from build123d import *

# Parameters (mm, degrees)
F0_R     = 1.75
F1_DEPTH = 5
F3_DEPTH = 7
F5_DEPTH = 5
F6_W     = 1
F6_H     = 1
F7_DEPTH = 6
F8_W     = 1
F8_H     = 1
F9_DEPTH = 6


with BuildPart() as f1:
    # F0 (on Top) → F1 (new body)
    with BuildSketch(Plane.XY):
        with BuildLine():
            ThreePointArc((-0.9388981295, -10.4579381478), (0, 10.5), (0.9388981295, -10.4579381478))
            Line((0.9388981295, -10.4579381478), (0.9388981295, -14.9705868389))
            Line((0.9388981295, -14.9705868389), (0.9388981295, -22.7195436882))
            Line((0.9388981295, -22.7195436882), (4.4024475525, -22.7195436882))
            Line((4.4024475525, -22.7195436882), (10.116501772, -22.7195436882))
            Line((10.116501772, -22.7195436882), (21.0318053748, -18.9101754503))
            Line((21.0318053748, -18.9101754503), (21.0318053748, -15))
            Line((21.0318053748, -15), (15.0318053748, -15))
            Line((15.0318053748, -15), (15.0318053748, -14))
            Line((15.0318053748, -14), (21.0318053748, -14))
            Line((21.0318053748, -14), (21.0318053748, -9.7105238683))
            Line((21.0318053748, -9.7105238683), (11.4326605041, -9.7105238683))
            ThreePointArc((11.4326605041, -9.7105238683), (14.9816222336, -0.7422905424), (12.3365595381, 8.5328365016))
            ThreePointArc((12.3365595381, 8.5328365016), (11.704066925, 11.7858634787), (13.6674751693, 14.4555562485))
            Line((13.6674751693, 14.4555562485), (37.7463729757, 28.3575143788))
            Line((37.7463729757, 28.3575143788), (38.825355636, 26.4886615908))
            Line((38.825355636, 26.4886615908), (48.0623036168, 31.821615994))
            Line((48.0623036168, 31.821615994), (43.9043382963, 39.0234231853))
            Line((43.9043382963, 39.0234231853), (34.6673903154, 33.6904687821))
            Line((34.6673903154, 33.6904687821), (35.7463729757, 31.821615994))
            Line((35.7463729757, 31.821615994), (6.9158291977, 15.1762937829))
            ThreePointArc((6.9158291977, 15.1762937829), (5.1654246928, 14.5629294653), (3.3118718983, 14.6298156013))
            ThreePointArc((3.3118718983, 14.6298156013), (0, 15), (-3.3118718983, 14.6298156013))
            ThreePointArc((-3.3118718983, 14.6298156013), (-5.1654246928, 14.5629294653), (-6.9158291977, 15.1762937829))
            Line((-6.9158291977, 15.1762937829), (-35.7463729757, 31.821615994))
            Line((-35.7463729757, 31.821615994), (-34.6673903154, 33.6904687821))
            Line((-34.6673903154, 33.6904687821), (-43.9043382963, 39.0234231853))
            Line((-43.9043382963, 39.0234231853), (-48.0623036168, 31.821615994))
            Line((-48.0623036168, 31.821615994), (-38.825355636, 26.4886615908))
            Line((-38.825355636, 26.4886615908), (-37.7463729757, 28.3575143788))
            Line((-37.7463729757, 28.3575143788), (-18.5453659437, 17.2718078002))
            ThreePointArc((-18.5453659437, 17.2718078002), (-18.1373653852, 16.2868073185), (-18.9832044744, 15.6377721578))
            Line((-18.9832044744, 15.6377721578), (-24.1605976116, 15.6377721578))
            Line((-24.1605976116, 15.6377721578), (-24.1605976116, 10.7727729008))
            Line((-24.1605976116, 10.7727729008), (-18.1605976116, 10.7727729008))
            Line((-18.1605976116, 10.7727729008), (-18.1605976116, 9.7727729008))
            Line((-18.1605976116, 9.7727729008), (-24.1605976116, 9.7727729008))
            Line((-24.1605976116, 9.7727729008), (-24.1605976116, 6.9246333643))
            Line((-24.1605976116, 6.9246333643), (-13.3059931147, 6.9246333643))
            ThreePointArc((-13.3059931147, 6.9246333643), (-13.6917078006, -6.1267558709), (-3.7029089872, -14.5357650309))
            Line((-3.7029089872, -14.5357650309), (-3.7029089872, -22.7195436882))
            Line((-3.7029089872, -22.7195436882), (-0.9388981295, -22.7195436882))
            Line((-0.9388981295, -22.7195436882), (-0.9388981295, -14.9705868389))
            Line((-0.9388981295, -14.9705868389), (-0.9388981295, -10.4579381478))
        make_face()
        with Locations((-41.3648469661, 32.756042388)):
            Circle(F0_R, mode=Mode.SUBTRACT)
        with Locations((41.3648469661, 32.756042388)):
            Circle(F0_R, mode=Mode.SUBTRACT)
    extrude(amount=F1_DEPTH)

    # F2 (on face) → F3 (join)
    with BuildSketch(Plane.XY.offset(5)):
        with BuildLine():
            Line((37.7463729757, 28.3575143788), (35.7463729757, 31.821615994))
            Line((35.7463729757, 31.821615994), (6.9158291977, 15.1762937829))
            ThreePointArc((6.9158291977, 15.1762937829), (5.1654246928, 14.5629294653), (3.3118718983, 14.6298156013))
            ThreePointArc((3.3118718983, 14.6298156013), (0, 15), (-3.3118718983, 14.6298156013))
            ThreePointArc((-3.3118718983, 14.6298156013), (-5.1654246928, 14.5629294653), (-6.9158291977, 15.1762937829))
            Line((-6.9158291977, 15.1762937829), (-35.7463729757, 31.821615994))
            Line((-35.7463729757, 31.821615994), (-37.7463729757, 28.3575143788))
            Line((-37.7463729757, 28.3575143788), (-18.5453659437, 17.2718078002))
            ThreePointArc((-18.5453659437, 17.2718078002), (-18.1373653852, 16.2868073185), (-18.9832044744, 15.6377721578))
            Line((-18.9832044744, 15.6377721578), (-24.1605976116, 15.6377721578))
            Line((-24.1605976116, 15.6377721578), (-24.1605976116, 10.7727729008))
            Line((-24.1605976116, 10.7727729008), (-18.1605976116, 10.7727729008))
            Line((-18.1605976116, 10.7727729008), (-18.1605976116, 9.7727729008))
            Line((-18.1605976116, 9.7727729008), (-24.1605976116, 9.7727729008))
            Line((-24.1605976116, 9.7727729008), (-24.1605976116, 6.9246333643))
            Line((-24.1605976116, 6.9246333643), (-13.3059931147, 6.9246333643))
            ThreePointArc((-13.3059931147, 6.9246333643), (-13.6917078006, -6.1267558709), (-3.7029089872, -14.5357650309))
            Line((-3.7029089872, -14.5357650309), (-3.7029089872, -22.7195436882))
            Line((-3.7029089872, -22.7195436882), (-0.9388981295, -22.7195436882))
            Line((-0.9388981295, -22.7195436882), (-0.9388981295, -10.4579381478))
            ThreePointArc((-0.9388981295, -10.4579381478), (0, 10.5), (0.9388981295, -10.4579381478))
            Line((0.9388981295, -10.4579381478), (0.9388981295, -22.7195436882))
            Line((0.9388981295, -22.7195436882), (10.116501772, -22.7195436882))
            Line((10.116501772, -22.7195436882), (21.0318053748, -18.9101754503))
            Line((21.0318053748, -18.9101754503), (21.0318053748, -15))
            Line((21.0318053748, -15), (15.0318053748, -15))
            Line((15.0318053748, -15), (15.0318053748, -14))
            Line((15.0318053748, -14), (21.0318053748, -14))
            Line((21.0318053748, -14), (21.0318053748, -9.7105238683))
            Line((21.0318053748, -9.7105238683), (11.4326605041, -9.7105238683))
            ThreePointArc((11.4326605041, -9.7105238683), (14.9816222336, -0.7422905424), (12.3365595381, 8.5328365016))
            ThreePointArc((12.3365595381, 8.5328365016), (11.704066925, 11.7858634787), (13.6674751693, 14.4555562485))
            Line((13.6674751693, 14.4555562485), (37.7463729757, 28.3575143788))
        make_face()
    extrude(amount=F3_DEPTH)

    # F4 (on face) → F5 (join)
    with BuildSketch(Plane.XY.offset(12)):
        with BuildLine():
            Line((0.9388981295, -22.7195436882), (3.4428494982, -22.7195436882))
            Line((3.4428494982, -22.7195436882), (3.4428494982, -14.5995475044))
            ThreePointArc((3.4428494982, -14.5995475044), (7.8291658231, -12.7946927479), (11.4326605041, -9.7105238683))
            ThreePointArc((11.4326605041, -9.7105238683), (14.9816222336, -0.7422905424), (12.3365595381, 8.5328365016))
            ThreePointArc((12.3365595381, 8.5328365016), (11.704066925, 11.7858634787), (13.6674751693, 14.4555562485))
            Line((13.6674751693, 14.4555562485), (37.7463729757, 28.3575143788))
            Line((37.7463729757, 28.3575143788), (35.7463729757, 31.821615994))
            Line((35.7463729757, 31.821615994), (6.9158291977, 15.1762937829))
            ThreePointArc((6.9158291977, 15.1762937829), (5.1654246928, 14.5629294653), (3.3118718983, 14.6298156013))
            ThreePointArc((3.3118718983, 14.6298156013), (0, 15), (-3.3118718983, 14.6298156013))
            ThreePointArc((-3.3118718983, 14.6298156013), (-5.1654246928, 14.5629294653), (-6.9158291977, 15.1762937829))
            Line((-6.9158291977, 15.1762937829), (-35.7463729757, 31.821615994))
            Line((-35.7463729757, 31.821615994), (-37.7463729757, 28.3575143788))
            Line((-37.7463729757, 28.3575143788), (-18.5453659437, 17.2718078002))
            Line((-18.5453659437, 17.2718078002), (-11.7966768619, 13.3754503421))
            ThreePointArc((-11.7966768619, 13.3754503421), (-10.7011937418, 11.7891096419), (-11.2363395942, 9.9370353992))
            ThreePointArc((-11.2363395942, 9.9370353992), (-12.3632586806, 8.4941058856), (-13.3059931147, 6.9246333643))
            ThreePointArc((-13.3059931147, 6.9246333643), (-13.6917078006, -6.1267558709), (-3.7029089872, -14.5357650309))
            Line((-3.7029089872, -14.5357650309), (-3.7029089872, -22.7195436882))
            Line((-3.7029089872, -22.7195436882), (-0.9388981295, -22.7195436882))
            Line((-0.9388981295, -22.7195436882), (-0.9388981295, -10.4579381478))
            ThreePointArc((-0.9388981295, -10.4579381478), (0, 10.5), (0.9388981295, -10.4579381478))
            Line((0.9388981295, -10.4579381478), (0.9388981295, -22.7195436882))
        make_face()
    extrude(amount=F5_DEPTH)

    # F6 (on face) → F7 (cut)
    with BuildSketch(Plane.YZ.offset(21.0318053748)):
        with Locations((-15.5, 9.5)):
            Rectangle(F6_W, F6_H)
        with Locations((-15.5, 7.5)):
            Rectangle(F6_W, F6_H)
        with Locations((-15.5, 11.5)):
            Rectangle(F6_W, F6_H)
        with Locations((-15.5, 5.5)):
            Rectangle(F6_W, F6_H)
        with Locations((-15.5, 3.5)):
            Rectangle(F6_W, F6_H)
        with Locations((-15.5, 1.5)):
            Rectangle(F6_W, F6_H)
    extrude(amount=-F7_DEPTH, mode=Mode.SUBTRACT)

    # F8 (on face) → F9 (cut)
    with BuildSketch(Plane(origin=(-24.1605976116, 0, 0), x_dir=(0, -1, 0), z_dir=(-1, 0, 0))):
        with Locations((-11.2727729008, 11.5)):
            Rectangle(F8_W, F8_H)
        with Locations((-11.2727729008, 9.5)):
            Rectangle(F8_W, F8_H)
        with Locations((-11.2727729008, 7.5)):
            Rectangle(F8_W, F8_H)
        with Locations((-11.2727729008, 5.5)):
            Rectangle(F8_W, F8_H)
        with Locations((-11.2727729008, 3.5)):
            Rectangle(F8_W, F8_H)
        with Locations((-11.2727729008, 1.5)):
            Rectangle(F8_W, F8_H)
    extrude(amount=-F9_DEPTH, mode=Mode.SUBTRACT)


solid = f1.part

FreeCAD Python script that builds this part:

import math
import FreeCAD as App
import Part
import Sketcher
from FreeCAD import Vector
Q = App.Units.Quantity

doc = App.newDocument("Part")
body = doc.addObject("PartDesign::Body", "Body")

# Sketch on XY plane
sketch1 = body.newObject("Sketcher::SketchObject", "Sketch")
sketch1.AttachmentSupport = (doc.getObject("XY_Plane"), [""])
sketch1.MapMode = "FlatFace"
sketch1.addGeometry([
    Part.ArcOfCircle(Part.Circle(Vector(0, 0, 0), Vector(0, 0, 1), 10.5), math.radians(-84.869824), math.radians(264.869824)),  # 0
    Part.LineSegment(Vector(0.938898, -10.457938, 0), Vector(0.938898, -22.719544, 0)),  # 1
    Part.LineSegment(Vector(0.938898, -22.719544, 0), Vector(10.116502, -22.719544, 0)),  # 2
    Part.LineSegment(Vector(10.116502, -22.719544, 0), Vector(21.031805, -18.910175, 0)),  # 3
    Part.LineSegment(Vector(21.031805, -18.910175, 0), Vector(21.031805, -15, 0)),  # 4
    Part.LineSegment(Vector(21.031805, -15, 0), Vector(15.031805, -15, 0)),  # 5
    Part.LineSegment(Vector(15.031805, -15, 0), Vector(15.031805, -14, 0)),  # 6
    Part.LineSegment(Vector(15.031805, -14, 0), Vector(21.031805, -14, 0)),  # 7
    Part.LineSegment(Vector(21.031805, -14, 0), Vector(21.031805, -9.710524, 0)),  # 8
    Part.LineSegment(Vector(21.031805, -9.710524, 0), Vector(11.432661, -9.710524, 0)),  # 9
    Part.ArcOfCircle(Part.Circle(Vector(0, 0, 0), Vector(0, 0, 1), 15), math.radians(-40.343472), math.radians(34.670473)),  # 10
    Part.ArcOfCircle(Part.Circle(Vector(15.731311, 10.880887, 0), Vector(0, 0, 1), 4.127673), math.radians(120), math.radians(214.670473)),  # 11
    Part.LineSegment(Vector(13.667475, 14.455556, 0), Vector(37.746373, 28.357514, 0)),  # 12
    Part.LineSegment(Vector(37.746373, 28.357514, 0), Vector(38.825356, 26.488662, 0)),  # 13
    Part.LineSegment(Vector(38.825356, 26.488662, 0), Vector(48.062304, 31.821616, 0)),  # 14
    Part.LineSegment(Vector(48.062304, 31.821616, 0), Vector(43.904338, 39.023423, 0)),  # 15
    Part.LineSegment(Vector(43.904338, 39.023423, 0), Vector(34.66739, 33.690469, 0)),  # 16
    Part.LineSegment(Vector(34.66739, 33.690469, 0), Vector(35.746373, 31.821616, 0)),  # 17
    Part.LineSegment(Vector(35.746373, 31.821616, 0), Vector(6.915829, 15.176294, 0)),  # 18
    Part.ArcOfCircle(Part.Circle(Vector(4.415829, 19.506421, 0), Vector(0, 0, 1), 5), math.radians(-102.755523), math.radians(-60)),  # 19
    Part.ArcOfCircle(Part.Circle(Vector(0, 0, 0), Vector(0, 0, 1), 15), math.radians(77.244477), math.radians(102.755523)),  # 20
    Part.ArcOfCircle(Part.Circle(Vector(-4.415829, 19.506421, 0), Vector(0, 0, 1), 5), math.radians(-120), math.radians(-77.244477)),  # 21
    Part.LineSegment(Vector(-6.915829, 15.176294, 0), Vector(-35.746373, 31.821616, 0)),  # 22
    Part.LineSegment(Vector(-35.746373, 31.821616, 0), Vector(-34.66739, 33.690469, 0)),  # 23
    Part.LineSegment(Vector(-34.66739, 33.690469, 0), Vector(-43.904338, 39.023423, 0)),  # 24
    Part.LineSegment(Vector(-43.904338, 39.023423, 0), Vector(-48.062304, 31.821616, 0)),  # 25
    Part.LineSegment(Vector(-48.062304, 31.821616, 0), Vector(-38.825356, 26.488662, 0)),  # 26
    Part.LineSegment(Vector(-38.825356, 26.488662, 0), Vector(-37.746373, 28.357514, 0)),  # 27
    Part.LineSegment(Vector(-37.746373, 28.357514, 0), Vector(-18.545366, 17.271808, 0)),  # 28
    Part.ArcOfCircle(Part.Circle(Vector(-18.983204, 16.513449, 0), Vector(0, 0, 1), 0.875677), math.radians(-90), math.radians(60)),  # 29
    Part.LineSegment(Vector(-18.983204, 15.637772, 0), Vector(-24.160598, 15.637772, 0)),  # 30
    Part.LineSegment(Vector(-24.160598, 15.637772, 0), Vector(-24.160598, 10.772773, 0)),  # 31
    Part.LineSegment(Vector(-24.160598, 10.772773, 0), Vector(-18.160598, 10.772773, 0)),  # 32
    Part.LineSegment(Vector(-18.160598, 10.772773, 0), Vector(-18.160598, 9.772773, 0)),  # 33
    Part.LineSegment(Vector(-18.160598, 9.772773, 0), Vector(-24.160598, 9.772773, 0)),  # 34
    Part.LineSegment(Vector(-24.160598, 9.772773, 0), Vector(-24.160598, 6.924633, 0)),  # 35
    Part.LineSegment(Vector(-24.160598, 6.924633, 0), Vector(-13.305993, 6.924633, 0)),  # 36
    Part.ArcOfCircle(Part.Circle(Vector(0, 0, 0), Vector(0, 0, 1), 15), math.radians(152.506872), math.radians(255.708184)),  # 37
    Part.LineSegment(Vector(-3.702909, -14.535765, 0), Vector(-3.702909, -22.719544, 0)),  # 38
    Part.LineSegment(Vector(-3.702909, -22.719544, 0), Vector(-0.938898, -22.719544, 0)),  # 39
    Part.LineSegment(Vector(-0.938898, -22.719544, 0), Vector(-0.938898, -10.457938, 0)),  # 40
    Part.Circle(Vector(-41.364847, 32.756042, 0), Vector(0, 0, 1), 1.75),  # 41
    Part.Circle(Vector(41.364847, 32.756042, 0), Vector(0, 0, 1), 1.75),  # 42
], False)
sketch1.addConstraint([
    Sketcher.Constraint("Coincident", 0, 1, 1, 1),
    Sketcher.Constraint("Coincident", 1, 2, 2, 1),
    Sketcher.Constraint("Coincident", 2, 2, 3, 1),
    Sketcher.Constraint("Coincident", 3, 2, 4, 1),
    Sketcher.Constraint("Coincident", 4, 2, 5, 1),
    Sketcher.Constraint("Coincident", 5, 2, 6, 1),
    Sketcher.Constraint("Coincident", 6, 2, 7, 1),
    Sketcher.Constraint("Coincident", 7, 2, 8, 1),
    Sketcher.Constraint("Coincident", 8, 2, 9, 1),
    Sketcher.Constraint("Coincident", 9, 2, 10, 1),
    Sketcher.Constraint("Tangent", 10, 2, 11, 2),
    Sketcher.Constraint("Tangent", 11, 1, 12, 1),
    Sketcher.Constraint("Coincident", 12, 2, 13, 1),
    Sketcher.Constraint("Coincident", 13, 2, 14, 1),
    Sketcher.Constraint("Coincident", 14, 2, 15, 1),
    Sketcher.Constraint("Coincident", 15, 2, 16, 1),
    Sketcher.Constraint("Coincident", 16, 2, 17, 1),
    Sketcher.Constraint("Coincident", 17, 2, 18, 1),
    Sketcher.Constraint("Tangent", 18, 2, 19, 2),
    Sketcher.Constraint("Tangent", 19, 1, 20, 1),
    Sketcher.Constraint("Tangent", 20, 2, 21, 2),
    Sketcher.Constraint("Tangent", 21, 1, 22, 1),
    Sketcher.Constraint("Coincident", 22, 2, 23, 1),
    Sketcher.Constraint("Coincident", 23, 2, 24, 1),
    Sketcher.Constraint("Coincident", 24, 2, 25, 1),
    Sketcher.Constraint("Coincident", 25, 2, 26, 1),
    Sketcher.Constraint("Coincident", 26, 2, 27, 1),
    Sketcher.Constraint("Coincident", 27, 2, 28, 1),
    Sketcher.Constraint("Tangent", 28, 2, 29, 2),
    Sketcher.Constraint("Tangent", 29, 1, 30, 1),
    Sketcher.Constraint("Coincident", 30, 2, 31, 1),
    Sketcher.Constraint("Coincident", 31, 2, 32, 1),
    Sketcher.Constraint("Coincident", 32, 2, 33, 1),
    Sketcher.Constraint("Coincident", 33, 2, 34, 1),
    Sketcher.Constraint("Coincident", 34, 2, 35, 1),
    Sketcher.Constraint("Coincident", 35, 2, 36, 1),
    Sketcher.Constraint("Coincident", 36, 2, 37, 1),
    Sketcher.Constraint("Coincident", 37, 2, 38, 1),
    Sketcher.Constraint("Coincident", 38, 2, 39, 1),
    Sketcher.Constraint("Coincident", 39, 2, 40, 1),
    Sketcher.Constraint("Coincident", 40, 2, 0, 2),
    Sketcher.Constraint("Vertical", 1),
    Sketcher.Constraint("Horizontal", 2),
    Sketcher.Constraint("Vertical", 4),
    Sketcher.Constraint("Horizontal", 5),
    Sketcher.Constraint("Vertical", 6),
    Sketcher.Constraint("Horizontal", 7),
    Sketcher.Constraint("Vertical", 8),
    Sketcher.Constraint("Horizontal", 9),
    Sketcher.Constraint("Horizontal", 30),
    Sketcher.Constraint("Vertical", 31),
    Sketcher.Constraint("Horizontal", 32),
    Sketcher.Constraint("Vertical", 33),
    Sketcher.Constraint("Horizontal", 34),
    Sketcher.Constraint("Vertical", 35),
    Sketcher.Constraint("Horizontal", 36),
    Sketcher.Constraint("Vertical", 38),
    Sketcher.Constraint("Horizontal", 39),
    Sketcher.Constraint("Vertical", 40),
    Sketcher.Constraint("Coincident", 0, 3, -1, 1),
    Sketcher.Constraint("Coincident", 10, 3, -1, 1),
    Sketcher.Constraint("Coincident", 20, 3, -1, 1),
    Sketcher.Constraint("Coincident", 37, 3, -1, 1),
    Sketcher.Constraint("Equal", 10, 20),
    Sketcher.Constraint("Equal", 19, 21),
    Sketcher.Constraint("Equal", 20, 37),
    Sketcher.Constraint("Equal", 41, 42),
    Sketcher.Constraint("Symmetric", 41, 3, 42, 3, -2),
    Sketcher.Constraint("Symmetric", 18, 2, 21, 1, -2),
    Sketcher.Constraint("Symmetric", 16, 2, 23, 2, -2),
    Sketcher.Constraint("Symmetric", 15, 2, 24, 2, -2),
    Sketcher.Constraint("Symmetric", 14, 2, 25, 2, -2),
    Sketcher.Constraint("Symmetric", 13, 2, 26, 2, -2),
    Sketcher.Constraint("Symmetric", 12, 2, 27, 2, -2),
    Sketcher.Constraint("Symmetric", 1, 2, 39, 2, -2),
    Sketcher.Constraint("Perpendicular", 12, 13),
    Sketcher.Constraint("Perpendicular", 13, 14),
    Sketcher.Constraint("Perpendicular", 14, 15),
    Sketcher.Constraint("Perpendicular", 15, 16),
    Sketcher.Constraint("Perpendicular", 16, 17),
    Sketcher.Constraint("Perpendicular", 17, 18),
    Sketcher.Constraint("Perpendicular", 22, 23),
    Sketcher.Constraint("Perpendicular", 27, 28),
    Sketcher.Constraint("Horizontal", 14, 2, 17, 2),
    Sketcher.Constraint("Vertical", 4, 2, 7, 2),
    Sketcher.Constraint("Vertical", 31, 2, 34, 2),
    Sketcher.Constraint("Equal", 7, 32),
    Sketcher.Constraint("Equal", 6, 33),
    Sketcher.Constraint("Equal", 14, 16),
    Sketcher.Constraint("Equal", 13, 17),
    Sketcher.Constraint("Radius", 10, 15.0),
    Sketcher.Constraint("Radius", 19, 5.0),
    Sketcher.Constraint("Diameter", 41, 3.5),
    Sketcher.Constraint("Radius", 0, 10.5),
    Sketcher.Constraint("DistanceX", 5, 2, 5, 1, 6.0),
    Sketcher.Constraint("DistanceY", 6, 1, 6, 2, 1.0),
    Sketcher.Constraint("Angle", 12, Q("30 deg")),
    Sketcher.Constraint("DistanceY", 4, 2, -1, 1, 15.0),
    Sketcher.Constraint("DistanceX", 17, 2, 12, 2, 2.0),
    Sketcher.Constraint("DistanceY", 31, 2, 31, 1, 4.864999),
    Sketcher.Constraint("Radius", 11, 4.127673),
    Sketcher.Constraint("Radius", 29, 0.875677),
    Sketcher.Constraint("DistanceX", 39, 1, 39, 2, 2.764011),
    Sketcher.Constraint("DistanceY", 35, 2, 35, 1, 2.84814),
    Sketcher.Constraint("DistanceY", 38, 2, 38, 1, 8.183779),
    Sketcher.Constraint("DistanceX", -1, 1, 0, 1, 0.938898),
    Sketcher.Constraint("DistanceX", -1, 1, 2, 2, 10.116502),
    Sketcher.Constraint("DistanceX", 21, 3, 19, 1, 7.727701),
    Sketcher.Constraint("DistanceX", 22, 2, 20, 2, 32.434501),
    Sketcher.Constraint("DistanceX", 25, 2, 29, 3, 29.079099),
    Sketcher.Constraint("Distance", 3, 11.560932),
    Sketcher.Constraint("Distance", 14, 10.665909),
    Sketcher.Constraint("DistanceX", 9, 2, 9, 1, 9.599145),
    Sketcher.Constraint("DistanceX", 30, 2, 30, 1, 5.177393),
    Sketcher.Constraint("DistanceY", 4, 1, 4, 2, 3.910175),
    Sketcher.Constraint("DistanceY", 21, 3, 41, 3, 13.249622),
    Sketcher.Constraint("DistanceX", 13, 2, 42, 3, 2.539491),
])
pad1 = body.newObject("PartDesign::Pad", "Pad")
pad1.Profile = sketch1
pad1.Length = 5

# Sketch on XY plane
sketch2 = body.newObject("Sketcher::SketchObject", "Sketch001")
sketch2.AttachmentSupport = (doc.getObject("XY_Plane"), [""])
sketch2.MapMode = "FlatFace"
sketch2.AttachmentOffset = App.Placement(Vector(0, 0, 5), App.Rotation())
sketch2.addGeometry([
    Part.LineSegment(Vector(37.746373, 28.357514, 0), Vector(35.746373, 31.821616, 0)),  # 0
    Part.LineSegment(Vector(35.746373, 31.821616, 0), Vector(6.915829, 15.176294, 0)),  # 1
    Part.ArcOfCircle(Part.Circle(Vector(4.415829, 19.506421, 0), Vector(0, 0, 1), 5), math.radians(-102.755523), math.radians(-60)),  # 2
    Part.ArcOfCircle(Part.Circle(Vector(0, 0, 0), Vector(0, 0, 1), 15), math.radians(77.244477), math.radians(102.755523)),  # 3
    Part.ArcOfCircle(Part.Circle(Vector(-4.415829, 19.506421, 0), Vector(0, 0, 1), 5), math.radians(-120), math.radians(-77.244477)),  # 4
    Part.LineSegment(Vector(-6.915829, 15.176294, 0), Vector(-35.746373, 31.821616, 0)),  # 5
    Part.LineSegment(Vector(-35.746373, 31.821616, 0), Vector(-37.746373, 28.357514, 0)),  # 6
    Part.LineSegment(Vector(-37.746373, 28.357514, 0), Vector(-18.545366, 17.271808, 0)),  # 7
    Part.ArcOfCircle(Part.Circle(Vector(-18.983204, 16.513449, 0), Vector(0, 0, 1), 0.875677), math.radians(-90), math.radians(60)),  # 8
    Part.LineSegment(Vector(-18.983204, 15.637772, 0), Vector(-24.160598, 15.637772, 0)),  # 9
    Part.LineSegment(Vector(-24.160598, 15.637772, 0), Vector(-24.160598, 10.772773, 0)),  # 10
    Part.LineSegment(Vector(-24.160598, 10.772773, 0), Vector(-18.160598, 10.772773, 0)),  # 11
    Part.LineSegment(Vector(-18.160598, 10.772773, 0), Vector(-18.160598, 9.772773, 0)),  # 12
    Part.LineSegment(Vector(-18.160598, 9.772773, 0), Vector(-24.160598, 9.772773, 0)),  # 13
    Part.LineSegment(Vector(-24.160598, 9.772773, 0), Vector(-24.160598, 6.924633, 0)),  # 14
    Part.LineSegment(Vector(-24.160598, 6.924633, 0), Vector(-13.305993, 6.924633, 0)),  # 15
    Part.ArcOfCircle(Part.Circle(Vector(0, 0, 0), Vector(0, 0, 1), 15), math.radians(152.506872), math.radians(255.708184)),  # 16
    Part.LineSegment(Vector(-3.702909, -14.535765, 0), Vector(-3.702909, -22.719544, 0)),  # 17
    Part.LineSegment(Vector(-3.702909, -22.719544, 0), Vector(-0.938898, -22.719544, 0)),  # 18
    Part.LineSegment(Vector(-0.938898, -22.719544, 0), Vector(-0.938898, -10.457938, 0)),  # 19
    Part.ArcOfCircle(Part.Circle(Vector(0, 0, 0), Vector(0, 0, 1), 10.5), math.radians(-84.869824), math.radians(264.869824)),  # 20
    Part.LineSegment(Vector(0.938898, -10.457938, 0), Vector(0.938898, -22.719544, 0)),  # 21
    Part.LineSegment(Vector(0.938898, -22.719544, 0), Vector(10.116502, -22.719544, 0)),  # 22
    Part.LineSegment(Vector(10.116502, -22.719544, 0), Vector(21.031805, -18.910175, 0)),  # 23
    Part.LineSegment(Vector(21.031805, -18.910175, 0), Vector(21.031805, -15, 0)),  # 24
    Part.LineSegment(Vector(21.031805, -15, 0), Vector(15.031805, -15, 0)),  # 25
    Part.LineSegment(Vector(15.031805, -15, 0), Vector(15.031805, -14, 0)),  # 26
    Part.LineSegment(Vector(15.031805, -14, 0), Vector(21.031805, -14, 0)),  # 27
    Part.LineSegment(Vector(21.031805, -14, 0), Vector(21.031805, -9.710524, 0)),  # 28
    Part.LineSegment(Vector(21.031805, -9.710524, 0), Vector(11.432661, -9.710524, 0)),  # 29
    Part.ArcOfCircle(Part.Circle(Vector(0, 0, 0), Vector(0, 0, 1), 15), math.radians(-40.343472), math.radians(34.670473)),  # 30
    Part.ArcOfCircle(Part.Circle(Vector(15.731311, 10.880887, 0), Vector(0, 0, 1), 4.127673), math.radians(120), math.radians(214.670473)),  # 31
    Part.LineSegment(Vector(13.667475, 14.455556, 0), Vector(37.746373, 28.357514, 0)),  # 32
], False)
sketch2.addConstraint([
    Sketcher.Constraint("Coincident", 0, 2, 1, 1),
    Sketcher.Constraint("Tangent", 1, 2, 2, 2),
    Sketcher.Constraint("Tangent", 2, 1, 3, 1),
    Sketcher.Constraint("Tangent", 3, 2, 4, 2),
    Sketcher.Constraint("Tangent", 4, 1, 5, 1),
    Sketcher.Constraint("Coincident", 5, 2, 6, 1),
    Sketcher.Constraint("Coincident", 6, 2, 7, 1),
    Sketcher.Constraint("Tangent", 7, 2, 8, 2),
    Sketcher.Constraint("Tangent", 8, 1, 9, 1),
    Sketcher.Constraint("Coincident", 9, 2, 10, 1),
    Sketcher.Constraint("Coincident", 10, 2, 11, 1),
    Sketcher.Constraint("Coincident", 11, 2, 12, 1),
    Sketcher.Constraint("Coincident", 12, 2, 13, 1),
    Sketcher.Constraint("Coincident", 13, 2, 14, 1),
    Sketcher.Constraint("Coincident", 14, 2, 15, 1),
    Sketcher.Constraint("Coincident", 15, 2, 16, 1),
    Sketcher.Constraint("Coincident", 16, 2, 17, 1),
    Sketcher.Constraint("Coincident", 17, 2, 18, 1),
    Sketcher.Constraint("Coincident", 18, 2, 19, 1),
    Sketcher.Constraint("Coincident", 19, 2, 20, 2),
    Sketcher.Constraint("Coincident", 20, 1, 21, 1),
    Sketcher.Constraint("Coincident", 21, 2, 22, 1),
    Sketcher.Constraint("Coincident", 22, 2, 23, 1),
    Sketcher.Constraint("Coincident", 23, 2, 24, 1),
    Sketcher.Constraint("Coincident", 24, 2, 25, 1),
    Sketcher.Constraint("Coincident", 25, 2, 26, 1),
    Sketcher.Constraint("Coincident", 26, 2, 27, 1),
    Sketcher.Constraint("Coincident", 27, 2, 28, 1),
    Sketcher.Constraint("Coincident", 28, 2, 29, 1),
    Sketcher.Constraint("Coincident", 29, 2, 30, 1),
    Sketcher.Constraint("Tangent", 30, 2, 31, 2),
    Sketcher.Constraint("Tangent", 31, 1, 32, 1),
    Sketcher.Constraint("Coincident", 32, 2, 0, 1),
    Sketcher.Constraint("Horizontal", 9),
    Sketcher.Constraint("Vertical", 10),
    Sketcher.Constraint("Horizontal", 11),
    Sketcher.Constraint("Vertical", 12),
    Sketcher.Constraint("Horizontal", 13),
    Sketcher.Constraint("Vertical", 14),
    Sketcher.Constraint("Horizontal", 15),
    Sketcher.Constraint("Vertical", 17),
    Sketcher.Constraint("Horizontal", 18),
    Sketcher.Constraint("Vertical", 19),
    Sketcher.Constraint("Vertical", 21),
    Sketcher.Constraint("Horizontal", 22),
    Sketcher.Constraint("Vertical", 24),
    Sketcher.Constraint("Horizontal", 25),
    Sketcher.Constraint("Vertical", 26),
    Sketcher.Constraint("Horizontal", 27),
    Sketcher.Constraint("Vertical", 28),
    Sketcher.Constraint("Horizontal", 29),
    Sketcher.Constraint("Coincident", 3, 3, -1, 1),
    Sketcher.Constraint("Coincident", 16, 3, -1, 1),
    Sketcher.Constraint("Coincident", 20, 3, -1, 1),
    Sketcher.Constraint("Coincident", 30, 3, -1, 1),
    Sketcher.Constraint("Equal", 2, 4),
    Sketcher.Constraint("Equal", 3, 16),
    Sketcher.Constraint("Equal", 16, 30),
    Sketcher.Constraint("Symmetric", 1, 2, 4, 1, -2),
    Sketcher.Constraint("Symmetric", 18, 2, 21, 2, -2),
    Sketcher.Constraint("Symmetric", 6, 2, 32, 2, -2),
    Sketcher.Constraint("Perpendicular", 0, 1),
    Sketcher.Constraint("Perpendicular", 5, 6),
    Sketcher.Constraint("Perpendicular", 6, 7),
    Sketcher.Constraint("Parallel", 1, 32),
    Sketcher.Constraint("Vertical", 10, 2, 13, 2),
    Sketcher.Constraint("Vertical", 24, 2, 27, 2),
    Sketcher.Constraint("Equal", 13, 25),
    Sketcher.Constraint("Equal", 12, 26),
    Sketcher.Constraint("Radius", 2, 5.0),
    Sketcher.Constraint("Radius", 3, 15.0),
    Sketcher.Constraint("Radius", 20, 10.5),
    Sketcher.Constraint("DistanceX", 11, 1, 11, 2, 6.0),
    Sketcher.Constraint("DistanceY", 12, 2, 12, 1, 1.0),
    Sketcher.Constraint("Angle", 0, Q("120 deg")),
    Sketcher.Constraint("Distance", 0, 4.0),
    Sketcher.Constraint("DistanceY", 24, 2, -1, 1, 15.0),
    Sketcher.Constraint("DistanceY", 10, 2, 10, 1, 4.864999),
    Sketcher.Constraint("Radius", 8, 0.875677),
    Sketcher.Constraint("Radius", 31, 4.127673),
    Sketcher.Constraint("DistanceX", 18, 1, 18, 2, 2.764011),
    Sketcher.Constraint("DistanceY", 14, 2, 14, 1, 2.84814),
    Sketcher.Constraint("DistanceY", 17, 2, 17, 1, 8.183779),
    Sketcher.Constraint("DistanceX", 18, 2, -1, 1, 0.938898),
    Sketcher.Constraint("DistanceX", -1, 1, 22, 2, 10.116502),
    Sketcher.Constraint("DistanceX", 4, 3, 2, 1, 7.727701),
    Sketcher.Constraint("DistanceX", 5, 2, 3, 2, 32.434501),
    Sketcher.Constraint("DistanceY", 16, 2, 15, 2, 21.460398),
    Sketcher.Constraint("Distance", 23, 11.560932),
    Sketcher.Constraint("DistanceX", 9, 2, 9, 1, 5.177393),
    Sketcher.Constraint("DistanceX", 29, 2, 29, 1, 9.599145),
    Sketcher.Constraint("DistanceY", 24, 1, 24, 2, 3.910175),
])
pad2 = body.newObject("PartDesign::Pad", "Pad001")
pad2.Profile = sketch2
pad2.Length = 7

# Sketch on XY plane
sketch3 = body.newObject("Sketcher::SketchObject", "Sketch002")
sketch3.AttachmentSupport = (doc.getObject("XY_Plane"), [""])
sketch3.MapMode = "FlatFace"
sketch3.AttachmentOffset = App.Placement(Vector(0, 0, 12), App.Rotation())
sketch3.addGeometry([
    Part.LineSegment(Vector(0.938898, -22.719544, 0), Vector(3.442849, -22.719544, 0)),  # 0
    Part.LineSegment(Vector(3.442849, -22.719544, 0), Vector(3.442849, -14.599548, 0)),  # 1
    Part.ArcOfCircle(Part.Circle(Vector(0, 0, 0), Vector(0, 0, 1), 15), math.radians(-76.730992), math.radians(-40.343472)),  # 2
    Part.ArcOfCircle(Part.Circle(Vector(0, 0, 0), Vector(0, 0, 1), 15), math.radians(-40.343472), math.radians(34.670473)),  # 3
    Part.ArcOfCircle(Part.Circle(Vector(15.731311, 10.880887, 0), Vector(0, 0, 1), 4.127673), math.radians(120), math.radians(214.670473)),  # 4
    Part.LineSegment(Vector(13.667475, 14.455556, 0), Vector(37.746373, 28.357514, 0)),  # 5
    Part.LineSegment(Vector(37.746373, 28.357514, 0), Vector(35.746373, 31.821616, 0)),  # 6
    Part.LineSegment(Vector(35.746373, 31.821616, 0), Vector(6.915829, 15.176294, 0)),  # 7
    Part.ArcOfCircle(Part.Circle(Vector(4.415829, 19.506421, 0), Vector(0, 0, 1), 5), math.radians(-102.755523), math.radians(-60)),  # 8
    Part.ArcOfCircle(Part.Circle(Vector(0, 0, 0), Vector(0, 0, 1), 15), math.radians(77.244477), math.radians(102.755523)),  # 9
    Part.ArcOfCircle(Part.Circle(Vector(-4.415829, 19.506421, 0), Vector(0, 0, 1), 5), math.radians(-120), math.radians(-77.244477)),  # 10
    Part.LineSegment(Vector(-6.915829, 15.176294, 0), Vector(-35.746373, 31.821616, 0)),  # 11
    Part.LineSegment(Vector(-35.746373, 31.821616, 0), Vector(-37.746373, 28.357514, 0)),  # 12
    Part.LineSegment(Vector(-37.746373, 28.357514, 0), Vector(-18.545366, 17.271808, 0)),  # 13
    Part.LineSegment(Vector(-18.545366, 17.271808, 0), Vector(-11.796677, 13.37545, 0)),  # 14
    Part.ArcOfCircle(Part.Circle(Vector(-12.921449, 11.427288, 0), Vector(0, 0, 1), 2.249544), math.radians(-41.488448), math.radians(60)),  # 15
    Part.ArcOfCircle(Part.Circle(Vector(0, 0, 0), Vector(0, 0, 1), 15), math.radians(138.511552), math.radians(152.506872)),  # 16
    Part.ArcOfCircle(Part.Circle(Vector(0, 0, 0), Vector(0, 0, 1), 15), math.radians(152.506872), math.radians(255.708184)),  # 17
    Part.LineSegment(Vector(-3.702909, -14.535765, 0), Vector(-3.702909, -22.719544, 0)),  # 18
    Part.LineSegment(Vector(-3.702909, -22.719544, 0), Vector(-0.938898, -22.719544, 0)),  # 19
    Part.LineSegment(Vector(-0.938898, -22.719544, 0), Vector(-0.938898, -10.457938, 0)),  # 20
    Part.ArcOfCircle(Part.Circle(Vector(0, 0, 0), Vector(0, 0, 1), 10.5), math.radians(-84.869824), math.radians(264.869824)),  # 21
    Part.LineSegment(Vector(0.938898, -10.457938, 0), Vector(0.938898, -22.719544, 0)),  # 22
], False)
sketch3.addConstraint([
    Sketcher.Constraint("Coincident", 0, 2, 1, 1),
    Sketcher.Constraint("Coincident", 1, 2, 2, 1),
    Sketcher.Constraint("Tangent", 2, 2, 3, 1),
    Sketcher.Constraint("Tangent", 3, 2, 4, 2),
    Sketcher.Constraint("Tangent", 4, 1, 5, 1),
    Sketcher.Constraint("Coincident", 5, 2, 6, 1),
    Sketcher.Constraint("Coincident", 6, 2, 7, 1),
    Sketcher.Constraint("Tangent", 7, 2, 8, 2),
    Sketcher.Constraint("Tangent", 8, 1, 9, 1),
    Sketcher.Constraint("Tangent", 9, 2, 10, 2),
    Sketcher.Constraint("Tangent", 10, 1, 11, 1),
    Sketcher.Constraint("Coincident", 11, 2, 12, 1),
    Sketcher.Constraint("Coincident", 12, 2, 13, 1),
    Sketcher.Constraint("Coincident", 13, 2, 14, 1),
    Sketcher.Constraint("Tangent", 14, 2, 15, 2),
    Sketcher.Constraint("Tangent", 15, 1, 16, 1),
    Sketcher.Constraint("Tangent", 16, 2, 17, 1),
    Sketcher.Constraint("Coincident", 17, 2, 18, 1),
    Sketcher.Constraint("Coincident", 18, 2, 19, 1),
    Sketcher.Constraint("Coincident", 19, 2, 20, 1),
    Sketcher.Constraint("Coincident", 20, 2, 21, 2),
    Sketcher.Constraint("Coincident", 21, 1, 22, 1),
    Sketcher.Constraint("Coincident", 22, 2, 0, 1),
    Sketcher.Constraint("Horizontal", 0),
    Sketcher.Constraint("Vertical", 1),
    Sketcher.Constraint("Vertical", 18),
    Sketcher.Constraint("Horizontal", 19),
    Sketcher.Constraint("Vertical", 20),
    Sketcher.Constraint("Vertical", 22),
    Sketcher.Constraint("Coincident", 2, 3, -1, 1),
    Sketcher.Constraint("Coincident", 9, 3, -1, 1),
    Sketcher.Constraint("Coincident", 16, 3, -1, 1),
    Sketcher.Constraint("Coincident", 21, 3, -1, 1),
    Sketcher.Constraint("Equal", 2, 3),
    Sketcher.Constraint("Equal", 3, 9),
    Sketcher.Constraint("Equal", 8, 10),
    Sketcher.Constraint("Equal", 9, 16),
    Sketcher.Constraint("Equal", 16, 17),
    Sketcher.Constraint("Symmetric", 7, 2, 10, 1, -2),
    Sketcher.Constraint("Symmetric", 5, 2, 12, 2, -2),
    Sketcher.Constraint("Symmetric", 19, 2, 22, 2, -2),
    Sketcher.Constraint("Perpendicular", 5, 6),
    Sketcher.Constraint("Perpendicular", 6, 7),
    Sketcher.Constraint("Perpendicular", 11, 12),
    Sketcher.Constraint("Perpendicular", 12, 13),
    Sketcher.Constraint("Parallel", 13, 14),
    Sketcher.Constraint("Radius", 2, 15.0),
    Sketcher.Constraint("Radius", 8, 5.0),
    Sketcher.Constraint("Radius", 21, 10.5),
    Sketcher.Constraint("Angle", 5, Q("30 deg")),
    Sketcher.Constraint("Distance", 6, 4.0),
    Sketcher.Constraint("Radius", 4, 4.127673),
    Sketcher.Constraint("Radius", 15, 2.249544),
    Sketcher.Constraint("DistanceX", 0, 1, 0, 2, 2.503951),
    Sketcher.Constraint("DistanceX", 19, 1, 19, 2, 2.764011),
    Sketcher.Constraint("DistanceY", 18, 2, 18, 1, 8.183779),
    Sketcher.Constraint("DistanceX", 19, 2, -1, 1, 0.938898),
    Sketcher.Constraint("DistanceX", 10, 3, 8, 1, 7.727701),
    Sketcher.Constraint("DistanceX", 11, 2, 9, 2, 32.434501),
    Sketcher.Constraint("DistanceX", -1, 1, 2, 2, 11.432661),
    Sketcher.Constraint("DistanceY", 15, 3, 13, 2, 5.844519),
    Sketcher.Constraint("DistanceY", 16, 2, 10, 1, 8.25166),
])
pad3 = body.newObject("PartDesign::Pad", "Pad002")
pad3.Profile = sketch3
pad3.Length = 5

# Sketch on YZ plane
sketch4 = body.newObject("Sketcher::SketchObject", "Sketch003")
sketch4.AttachmentSupport = (doc.getObject("YZ_Plane"), [""])
sketch4.MapMode = "FlatFace"
sketch4.AttachmentOffset = App.Placement(Vector(0, 0, 21.031805), App.Rotation())
sketch4.addGeometry([
    Part.LineSegment(Vector(-16, 10, 0), Vector(-16, 9, 0)),  # 0
    Part.LineSegment(Vector(-16, 9, 0), Vector(-15, 9, 0)),  # 1
    Part.LineSegment(Vector(-15, 9, 0), Vector(-15, 10, 0)),  # 2
    Part.LineSegment(Vector(-15, 10, 0), Vector(-16, 10, 0)),  # 3
    Part.LineSegment(Vector(-16, 8, 0), Vector(-16, 7, 0)),  # 4
    Part.LineSegment(Vector(-16, 7, 0), Vector(-15, 7, 0)),  # 5
    Part.LineSegment(Vector(-15, 7, 0), Vector(-15, 8, 0)),  # 6
    Part.LineSegment(Vector(-15, 8, 0), Vector(-16, 8, 0)),  # 7
    Part.LineSegment(Vector(-16, 12, 0), Vector(-16, 11, 0)),  # 8
    Part.LineSegment(Vector(-16, 11, 0), Vector(-15, 11, 0)),  # 9
    Part.LineSegment(Vector(-15, 11, 0), Vector(-15, 12, 0)),  # 10
    Part.LineSegment(Vector(-15, 12, 0), Vector(-16, 12, 0)),  # 11
    Part.LineSegment(Vector(-16, 6, 0), Vector(-16, 5, 0)),  # 12
    Part.LineSegment(Vector(-16, 5, 0), Vector(-15, 5, 0)),  # 13
    Part.LineSegment(Vector(-15, 5, 0), Vector(-15, 6, 0)),  # 14
    Part.LineSegment(Vector(-15, 6, 0), Vector(-16, 6, 0)),  # 15
    Part.LineSegment(Vector(-16, 4, 0), Vector(-16, 3, 0)),  # 16
    Part.LineSegment(Vector(-16, 3, 0), Vector(-15, 3, 0)),  # 17
    Part.LineSegment(Vector(-15, 3, 0), Vector(-15, 4, 0)),  # 18
    Part.LineSegment(Vector(-15, 4, 0), Vector(-16, 4, 0)),  # 19
    Part.LineSegment(Vector(-16, 2, 0), Vector(-16, 1, 0)),  # 20
    Part.LineSegment(Vector(-16, 1, 0), Vector(-15, 1, 0)),  # 21
    Part.LineSegment(Vector(-15, 1, 0), Vector(-15, 2, 0)),  # 22
    Part.LineSegment(Vector(-15, 2, 0), Vector(-16, 2, 0)),  # 23
], False)
sketch4.addConstraint([
    Sketcher.Constraint("Coincident", 0, 2, 1, 1),
    Sketcher.Constraint("Coincident", 1, 2, 2, 1),
    Sketcher.Constraint("Coincident", 2, 2, 3, 1),
    Sketcher.Constraint("Coincident", 3, 2, 0, 1),
    Sketcher.Constraint("Coincident", 4, 2, 5, 1),
    Sketcher.Constraint("Coincident", 5, 2, 6, 1),
    Sketcher.Constraint("Coincident", 6, 2, 7, 1),
    Sketcher.Constraint("Coincident", 7, 2, 4, 1),
    Sketcher.Constraint("Coincident", 8, 2, 9, 1),
    Sketcher.Constraint("Coincident", 9, 2, 10, 1),
    Sketcher.Constraint("Coincident", 10, 2, 11, 1),
    Sketcher.Constraint("Coincident", 11, 2, 8, 1),
    Sketcher.Constraint("Coincident", 12, 2, 13, 1),
    Sketcher.Constraint("Coincident", 13, 2, 14, 1),
    Sketcher.Constraint("Coincident", 14, 2, 15, 1),
    Sketcher.Constraint("Coincident", 15, 2, 12, 1),
    Sketcher.Constraint("Coincident", 16, 2, 17, 1),
    Sketcher.Constraint("Coincident", 17, 2, 18, 1),
    Sketcher.Constraint("Coincident", 18, 2, 19, 1),
    Sketcher.Constraint("Coincident", 19, 2, 16, 1),
    Sketcher.Constraint("Coincident", 20, 2, 21, 1),
    Sketcher.Constraint("Coincident", 21, 2, 22, 1),
    Sketcher.Constraint("Coincident", 22, 2, 23, 1),
    Sketcher.Constraint("Coincident", 23, 2, 20, 1),
    Sketcher.Constraint("Vertical", 0),
    Sketcher.Constraint("Horizontal", 1),
    Sketcher.Constraint("Vertical", 2),
    Sketcher.Constraint("Horizontal", 3),
    Sketcher.Constraint("Vertical", 4),
    Sketcher.Constraint("Horizontal", 5),
    Sketcher.Constraint("Vertical", 6),
    Sketcher.Constraint("Horizontal", 7),
    Sketcher.Constraint("Vertical", 8),
    Sketcher.Constraint("Horizontal", 9),
    Sketcher.Constraint("Vertical", 10),
    Sketcher.Constraint("Horizontal", 11),
    Sketcher.Constraint("Vertical", 12),
    Sketcher.Constraint("Horizontal", 13),
    Sketcher.Constraint("Vertical", 14),
    Sketcher.Constraint("Horizontal", 15),
    Sketcher.Constraint("Vertical", 16),
    Sketcher.Constraint("Horizontal", 17),
    Sketcher.Constraint("Vertical", 18),
    Sketcher.Constraint("Horizontal", 19),
    Sketcher.Constraint("Vertical", 20),
    Sketcher.Constraint("Horizontal", 21),
    Sketcher.Constraint("Vertical", 22),
    Sketcher.Constraint("Horizontal", 23),
    Sketcher.Constraint("Vertical", 3, 2, 4, 2),
    Sketcher.Constraint("Vertical", 2, 2, 5, 2),
    Sketcher.Constraint("Vertical", 7, 2, 8, 2),
    Sketcher.Constraint("Vertical", 6, 2, 9, 2),
    Sketcher.Constraint("Vertical", 11, 2, 12, 2),
    Sketcher.Constraint("Vertical", 10, 2, 13, 2),
    Sketcher.Constraint("Vertical", 15, 2, 16, 2),
    Sketcher.Constraint("Vertical", 14, 2, 17, 2),
    Sketcher.Constraint("Vertical", 19, 2, 20, 2),
    Sketcher.Constraint("Vertical", 18, 2, 21, 2),
    Sketcher.Constraint("Equal", 23, 0),
    Sketcher.Constraint("Equal", 2, 4),
    Sketcher.Constraint("Equal", 6, 8),
    Sketcher.Constraint("Equal", 10, 12),
    Sketcher.Constraint("Equal", 14, 16),
    Sketcher.Constraint("Equal", 18, 20),
    Sketcher.Constraint("DistanceX", 1, 1, 1, 2, 1.0),
    Sketcher.Constraint("DistanceX", 0, 2, -1, 1, 16.0),
    Sketcher.Constraint("DistanceY", -1, 1, 0, 2, 9.0),
    Sketcher.Constraint("DistanceY", -1, 1, 4, 2, 7.0),
    Sketcher.Constraint("DistanceY", -1, 1, 8, 2, 11.0),
    Sketcher.Constraint("DistanceY", -1, 1, 12, 2, 5.0),
    Sketcher.Constraint("DistanceY", -1, 1, 16, 2, 3.0),
    Sketcher.Constraint("DistanceY", -1, 1, 20, 2, 1.0),
])
pocket1 = body.newObject("PartDesign::Pocket", "Pocket")
pocket1.Profile = sketch4
pocket1.Length = 6

# Sketch on YZ plane
sketch5 = body.newObject("Sketcher::SketchObject", "Sketch004")
sketch5.AttachmentSupport = (doc.getObject("YZ_Plane"), [""])
sketch5.MapMode = "FlatFace"
sketch5.AttachmentOffset = App.Placement(Vector(0, 0, -24.160598), App.Rotation())
sketch5.addGeometry([
    Part.LineSegment(Vector(11.772773, 12, 0), Vector(11.772773, 11, 0)),  # 0
    Part.LineSegment(Vector(11.772773, 11, 0), Vector(10.772773, 11, 0)),  # 1
    Part.LineSegment(Vector(10.772773, 11, 0), Vector(10.772773, 12, 0)),  # 2
    Part.LineSegment(Vector(10.772773, 12, 0), Vector(11.772773, 12, 0)),  # 3
    Part.LineSegment(Vector(11.772773, 10, 0), Vector(11.772773, 9, 0)),  # 4
    Part.LineSegment(Vector(11.772773, 9, 0), Vector(10.772773, 9, 0)),  # 5
    Part.LineSegment(Vector(10.772773, 9, 0), Vector(10.772773, 10, 0)),  # 6
    Part.LineSegment(Vector(10.772773, 10, 0), Vector(11.772773, 10, 0)),  # 7
    Part.LineSegment(Vector(11.772773, 8, 0), Vector(11.772773, 7, 0)),  # 8
    Part.LineSegment(Vector(11.772773, 7, 0), Vector(10.772773, 7, 0)),  # 9
    Part.LineSegment(Vector(10.772773, 7, 0), Vector(10.772773, 8, 0)),  # 10
    Part.LineSegment(Vector(10.772773, 8, 0), Vector(11.772773, 8, 0)),  # 11
    Part.LineSegment(Vector(11.772773, 6, 0), Vector(11.772773, 5, 0)),  # 12
    Part.LineSegment(Vector(11.772773, 5, 0), Vector(10.772773, 5, 0)),  # 13
    Part.LineSegment(Vector(10.772773, 5, 0), Vector(10.772773, 6, 0)),  # 14
    Part.LineSegment(Vector(10.772773, 6, 0), Vector(11.772773, 6, 0)),  # 15
    Part.LineSegment(Vector(11.772773, 4, 0), Vector(11.772773, 3, 0)),  # 16
    Part.LineSegment(Vector(11.772773, 3, 0), Vector(10.772773, 3, 0)),  # 17
    Part.LineSegment(Vector(10.772773, 3, 0), Vector(10.772773, 4, 0)),  # 18
    Part.LineSegment(Vector(10.772773, 4, 0), Vector(11.772773, 4, 0)),  # 19
    Part.LineSegment(Vector(11.772773, 2, 0), Vector(11.772773, 1, 0)),  # 20
    Part.LineSegment(Vector(11.772773, 1, 0), Vector(10.772773, 1, 0)),  # 21
    Part.LineSegment(Vector(10.772773, 1, 0), Vector(10.772773, 2, 0)),  # 22
    Part.LineSegment(Vector(10.772773, 2, 0), Vector(11.772773, 2, 0)),  # 23
], False)
sketch5.addConstraint([
    Sketcher.Constraint("Coincident", 0, 2, 1, 1),
    Sketcher.Constraint("Coincident", 1, 2, 2, 1),
    Sketcher.Constraint("Coincident", 2, 2, 3, 1),
    Sketcher.Constraint("Coincident", 3, 2, 0, 1),
    Sketcher.Constraint("Coincident", 4, 2, 5, 1),
    Sketcher.Constraint("Coincident", 5, 2, 6, 1),
    Sketcher.Constraint("Coincident", 6, 2, 7, 1),
    Sketcher.Constraint("Coincident", 7, 2, 4, 1),
    Sketcher.Constraint("Coincident", 8, 2, 9, 1),
    Sketcher.Constraint("Coincident", 9, 2, 10, 1),
    Sketcher.Constraint("Coincident", 10, 2, 11, 1),
    Sketcher.Constraint("Coincident", 11, 2, 8, 1),
    Sketcher.Constraint("Coincident", 12, 2, 13, 1),
    Sketcher.Constraint("Coincident", 13, 2, 14, 1),
    Sketcher.Constraint("Coincident", 14, 2, 15, 1),
    Sketcher.Constraint("Coincident", 15, 2, 12, 1),
    Sketcher.Constraint("Coincident", 16, 2, 17, 1),
    Sketcher.Constraint("Coincident", 17, 2, 18, 1),
    Sketcher.Constraint("Coincident", 18, 2, 19, 1),
    Sketcher.Constraint("Coincident", 19, 2, 16, 1),
    Sketcher.Constraint("Coincident", 20, 2, 21, 1),
    Sketcher.Constraint("Coincident", 21, 2, 22, 1),
    Sketcher.Constraint("Coincident", 22, 2, 23, 1),
    Sketcher.Constraint("Coincident", 23, 2, 20, 1),
    Sketcher.Constraint("Vertical", 0),
    Sketcher.Constraint("Horizontal", 1),
    Sketcher.Constraint("Vertical", 2),
    Sketcher.Constraint("Horizontal", 3),
    Sketcher.Constraint("Vertical", 4),
    Sketcher.Constraint("Horizontal", 5),
    Sketcher.Constraint("Vertical", 6),
    Sketcher.Constraint("Horizontal", 7),
    Sketcher.Constraint("Vertical", 8),
    Sketcher.Constraint("Horizontal", 9),
    Sketcher.Constraint("Vertical", 10),
    Sketcher.Constraint("Horizontal", 11),
    Sketcher.Constraint("Vertical", 12),
    Sketcher.Constraint("Horizontal", 13),
    Sketcher.Constraint("Vertical", 14),
    Sketcher.Constraint("Horizontal", 15),
    Sketcher.Constraint("Vertical", 16),
    Sketcher.Constraint("Horizontal", 17),
    Sketcher.Constraint("Vertical", 18),
    Sketcher.Constraint("Horizontal", 19),
    Sketcher.Constraint("Vertical", 20),
    Sketcher.Constraint("Horizontal", 21),
    Sketcher.Constraint("Vertical", 22),
    Sketcher.Constraint("Horizontal", 23),
    Sketcher.Constraint("Vertical", 3, 2, 4, 2),
    Sketcher.Constraint("Vertical", 2, 2, 5, 2),
    Sketcher.Constraint("Vertical", 7, 2, 8, 2),
    Sketcher.Constraint("Vertical", 6, 2, 9, 2),
    Sketcher.Constraint("Vertical", 11, 2, 12, 2),
    Sketcher.Constraint("Vertical", 10, 2, 13, 2),
    Sketcher.Constraint("Vertical", 15, 2, 16, 2),
    Sketcher.Constraint("Vertical", 14, 2, 17, 2),
    Sketcher.Constraint("Vertical", 19, 2, 20, 2),
    Sketcher.Constraint("Vertical", 18, 2, 21, 2),
    Sketcher.Constraint("Equal", 23, 0),
    Sketcher.Constraint("Equal", 2, 4),
    Sketcher.Constraint("Equal", 6, 8),
    Sketcher.Constraint("Equal", 10, 12),
    Sketcher.Constraint("Equal", 14, 16),
    Sketcher.Constraint("Equal", 18, 20),
    Sketcher.Constraint("DistanceX", 1, 2, 1, 1, 1.0),
    Sketcher.Constraint("DistanceY", -1, 1, 0, 2, 11.0),
    Sketcher.Constraint("DistanceY", -1, 1, 4, 2, 9.0),
    Sketcher.Constraint("DistanceY", -1, 1, 8, 2, 7.0),
    Sketcher.Constraint("DistanceY", -1, 1, 12, 2, 5.0),
    Sketcher.Constraint("DistanceY", -1, 1, 16, 2, 3.0),
    Sketcher.Constraint("DistanceY", -1, 1, 20, 2, 1.0),
    Sketcher.Constraint("DistanceX", -1, 1, 0, 2, 11.772773),
])
pocket2 = body.newObject("PartDesign::Pocket", "Pocket001")
pocket2.Profile = sketch5
pocket2.Length = 6
pocket2.Reversed = True

doc.recompute()
